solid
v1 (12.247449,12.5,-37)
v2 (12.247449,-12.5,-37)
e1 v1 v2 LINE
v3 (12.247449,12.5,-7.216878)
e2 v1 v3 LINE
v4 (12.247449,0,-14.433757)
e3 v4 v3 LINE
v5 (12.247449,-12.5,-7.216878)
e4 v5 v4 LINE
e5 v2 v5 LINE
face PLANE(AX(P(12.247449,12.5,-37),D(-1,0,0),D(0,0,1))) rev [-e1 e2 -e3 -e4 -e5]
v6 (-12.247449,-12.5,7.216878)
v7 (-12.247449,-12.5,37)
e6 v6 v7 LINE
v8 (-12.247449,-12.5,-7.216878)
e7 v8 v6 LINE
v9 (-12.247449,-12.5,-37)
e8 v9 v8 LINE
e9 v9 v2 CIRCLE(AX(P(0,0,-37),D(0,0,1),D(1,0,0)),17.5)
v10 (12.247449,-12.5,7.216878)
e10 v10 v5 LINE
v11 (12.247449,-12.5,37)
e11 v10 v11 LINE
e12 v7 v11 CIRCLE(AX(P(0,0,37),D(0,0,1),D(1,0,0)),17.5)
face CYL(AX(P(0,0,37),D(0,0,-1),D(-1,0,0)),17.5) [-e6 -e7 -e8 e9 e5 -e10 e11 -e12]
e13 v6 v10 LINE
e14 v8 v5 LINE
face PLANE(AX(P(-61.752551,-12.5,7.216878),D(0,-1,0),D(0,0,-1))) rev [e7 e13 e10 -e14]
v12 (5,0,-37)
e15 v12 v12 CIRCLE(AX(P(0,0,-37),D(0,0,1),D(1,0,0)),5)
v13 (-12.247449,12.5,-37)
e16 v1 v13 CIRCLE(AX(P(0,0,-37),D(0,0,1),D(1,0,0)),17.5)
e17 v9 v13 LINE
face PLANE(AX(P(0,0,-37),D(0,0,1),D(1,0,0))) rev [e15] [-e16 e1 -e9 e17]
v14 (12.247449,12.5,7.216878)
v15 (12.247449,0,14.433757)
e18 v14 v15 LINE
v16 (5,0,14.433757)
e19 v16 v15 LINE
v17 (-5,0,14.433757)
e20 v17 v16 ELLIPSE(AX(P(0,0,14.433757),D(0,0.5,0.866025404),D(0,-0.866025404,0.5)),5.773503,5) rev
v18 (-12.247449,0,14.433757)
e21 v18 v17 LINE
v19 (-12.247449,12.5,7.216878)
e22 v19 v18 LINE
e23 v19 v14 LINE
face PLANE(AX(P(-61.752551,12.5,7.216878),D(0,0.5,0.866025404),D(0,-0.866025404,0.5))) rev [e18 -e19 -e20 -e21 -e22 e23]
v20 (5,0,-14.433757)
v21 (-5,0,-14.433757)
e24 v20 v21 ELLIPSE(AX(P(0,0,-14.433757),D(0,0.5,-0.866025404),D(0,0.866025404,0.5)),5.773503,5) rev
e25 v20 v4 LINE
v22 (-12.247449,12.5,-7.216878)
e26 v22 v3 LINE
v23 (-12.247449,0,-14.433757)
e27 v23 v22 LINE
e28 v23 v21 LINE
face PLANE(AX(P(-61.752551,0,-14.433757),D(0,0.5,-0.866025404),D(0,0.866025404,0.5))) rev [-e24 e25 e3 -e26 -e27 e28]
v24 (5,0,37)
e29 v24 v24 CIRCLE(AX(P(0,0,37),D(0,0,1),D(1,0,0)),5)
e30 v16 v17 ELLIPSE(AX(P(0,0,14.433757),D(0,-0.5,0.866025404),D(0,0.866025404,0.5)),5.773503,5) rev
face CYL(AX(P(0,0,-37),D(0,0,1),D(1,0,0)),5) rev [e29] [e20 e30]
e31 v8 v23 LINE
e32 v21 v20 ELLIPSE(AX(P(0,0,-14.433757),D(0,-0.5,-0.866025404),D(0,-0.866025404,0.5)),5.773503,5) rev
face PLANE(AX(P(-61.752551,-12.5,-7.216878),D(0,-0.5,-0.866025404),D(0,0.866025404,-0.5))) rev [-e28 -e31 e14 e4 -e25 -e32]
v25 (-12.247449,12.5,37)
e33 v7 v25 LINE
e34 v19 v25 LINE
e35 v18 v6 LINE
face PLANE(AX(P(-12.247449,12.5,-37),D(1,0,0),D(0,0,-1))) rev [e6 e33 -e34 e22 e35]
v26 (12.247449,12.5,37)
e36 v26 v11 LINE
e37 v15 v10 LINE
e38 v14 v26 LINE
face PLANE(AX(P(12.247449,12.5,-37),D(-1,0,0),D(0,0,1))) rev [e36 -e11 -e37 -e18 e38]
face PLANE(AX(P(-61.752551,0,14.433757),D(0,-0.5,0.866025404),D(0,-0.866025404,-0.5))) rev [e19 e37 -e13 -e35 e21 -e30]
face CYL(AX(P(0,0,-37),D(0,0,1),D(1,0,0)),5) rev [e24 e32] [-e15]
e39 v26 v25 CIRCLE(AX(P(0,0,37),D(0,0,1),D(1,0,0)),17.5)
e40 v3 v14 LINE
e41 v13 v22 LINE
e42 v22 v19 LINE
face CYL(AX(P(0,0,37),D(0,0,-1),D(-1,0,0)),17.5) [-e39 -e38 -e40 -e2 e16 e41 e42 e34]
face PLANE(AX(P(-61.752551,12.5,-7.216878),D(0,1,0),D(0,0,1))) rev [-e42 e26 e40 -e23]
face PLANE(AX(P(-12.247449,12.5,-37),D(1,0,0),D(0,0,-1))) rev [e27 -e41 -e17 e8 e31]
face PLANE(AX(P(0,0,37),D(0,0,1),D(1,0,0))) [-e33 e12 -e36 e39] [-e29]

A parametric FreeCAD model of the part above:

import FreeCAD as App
import Part
import Sketcher
Q = App.Units.Quantity

doc = App.newDocument("Part")
body = doc.addObject("PartDesign::Body", "Body")

# Sketch on XY plane
sketch1 = doc.addObject("Sketcher::SketchObject", "Sketch")
body.addObject(sketch1)
sketch1.AttachmentSupport = (doc.XY_Plane, [""])
sketch1.MapMode = "FlatFace"
sketch1.addGeometry(Part.Circle(App.Vector(0, 0, 0), App.Vector(0, 0, 1), 18), False)
sketch1.addConstraint([
    Sketcher.Constraint("Coincident", 0, 3, -1, 1),
    Sketcher.Constraint("Diameter", 0, Q("35 mm")),
])
pad1 = doc.addObject("PartDesign::Pad", "Pad")
body.addObject(pad1)
pad1.Profile = sketch1
pad1.Length = 74
pad1.Midplane = True

# Sketch on XY plane
sketch2 = doc.addObject("Sketcher::SketchObject", "Sketch001")
body.addObject(sketch2)
sketch2.AttachmentSupport = (doc.XY_Plane, [""])
sketch2.MapMode = "FlatFace"
sketch2.AttachmentOffset = App.Placement(App.Vector(0, 0, 37), App.Rotation())
sketch2.addGeometry([
    Part.LineSegment(App.Vector(-33, 12, 0), App.Vector(-33, -12, 0)),  # 0
    Part.LineSegment(App.Vector(-33, -12, 0), App.Vector(-12, -12, 0)),  # 1
    Part.LineSegment(App.Vector(-12, -12, 0), App.Vector(-12, 12, 0)),  # 2
    Part.LineSegment(App.Vector(-12, 12, 0), App.Vector(-33, 12, 0)),  # 3
    Part.LineSegment(App.Vector(12, 12, 0), App.Vector(12, -12, 0)),  # 4
    Part.LineSegment(App.Vector(12, -12, 0), App.Vector(33, -12, 0)),  # 5
    Part.LineSegment(App.Vector(33, -12, 0), App.Vector(33, 12, 0)),  # 6
    Part.LineSegment(App.Vector(33, 12, 0), App.Vector(12, 12, 0)),  # 7
], False)
sketch2.addConstraint([
    Sketcher.Constraint("Coincident", 0, 2, 1, 1),
    Sketcher.Constraint("Coincident", 1, 2, 2, 1),
    Sketcher.Constraint("Coincident", 2, 2, 3, 1),
    Sketcher.Constraint("Coincident", 3, 2, 0, 1),
    Sketcher.Constraint("Coincident", 4, 2, 5, 1),
    Sketcher.Constraint("Coincident", 5, 2, 6, 1),
    Sketcher.Constraint("Coincident", 6, 2, 7, 1),
    Sketcher.Constraint("Coincident", 7, 2, 4, 1),
    Sketcher.Constraint("Vertical", 0),
    Sketcher.Constraint("Horizontal", 1),
    Sketcher.Constraint("Vertical", 2),
    Sketcher.Constraint("Horizontal", 3),
    Sketcher.Constraint("Vertical", 4),
    Sketcher.Constraint("Horizontal", 5),
    Sketcher.Constraint("Vertical", 6),
    Sketcher.Constraint("Horizontal", 7),
    Sketcher.Constraint("Symmetric", 2, 2, 4, 2, -1, 1),
    Sketcher.Constraint("Symmetric", 0, 2, 6, 2, -1, 1),
    Sketcher.Constraint("Horizontal", 1, 2, 4, 2),
    Sketcher.Constraint("DistanceY", 0, 2, 0, 1, Q("25 mm")),
    Sketcher.Constraint("DistanceX", 1, 1, 1, 2, Q("21.176448 mm")),
    Sketcher.Constraint("DistanceX", 1, 2, -1, 1, Q("12.247449 mm")),
])
pocket1 = doc.addObject("PartDesign::Pocket", "Pocket")
body.addObject(pocket1)
pocket1.Profile = sketch2
pocket1.Length = 74

# Sketch on XY plane
sketch3 = doc.addObject("Sketcher::SketchObject", "Sketch002")
body.addObject(sketch3)
sketch3.AttachmentSupport = (doc.XY_Plane, [""])
sketch3.MapMode = "FlatFace"
sketch3.AttachmentOffset = App.Placement(App.Vector(0, 0, 37), App.Rotation())
sketch3.addGeometry(Part.Circle(App.Vector(0, 0, 0), App.Vector(0, 0, 1), 5), False)
sketch3.addConstraint([
    Sketcher.Constraint("Coincident", 0, 3, -1, 1),
    Sketcher.Constraint("Diameter", 0, Q("10 mm")),
])
pocket2 = doc.addObject("PartDesign::Pocket", "Pocket001")
body.addObject(pocket2)
pocket2.Profile = sketch3
pocket2.Length = 74

# Sketch on YZ plane
sketch4 = doc.addObject("Sketcher::SketchObject", "Sketch003")
body.addObject(sketch4)
sketch4.AttachmentSupport = (doc.YZ_Plane, [""])
sketch4.MapMode = "FlatFace"
sketch4.AttachmentOffset = App.Placement(App.Vector(0, 0, 12.247449), App.Rotation())
sketch4.addGeometry([
    Part.LineSegment(App.Vector(0, -14, 0), App.Vector(12, -7, 0)),  # 0
    Part.LineSegment(App.Vector(12, -7, 0), App.Vector(12, 7, 0)),  # 1
    Part.LineSegment(App.Vector(12, 7, 0), App.Vector(0, 14, 0)),  # 2
    Part.LineSegment(App.Vector(0, 14, 0), App.Vector(-12, 7, 0)),  # 3
    Part.LineSegment(App.Vector(-12, 7, 0), App.Vector(-12, -7, 0)),  # 4
    Part.LineSegment(App.Vector(-12, -7, 0), App.Vector(0, -14, 0)),  # 5
], False)
sketch4.addConstraint([
    Sketcher.Constraint("Coincident", 0, 2, 1, 1),
    Sketcher.Constraint("Coincident", 1, 2, 2, 1),
    Sketcher.Constraint("Coincident", 2, 2, 3, 1),
    Sketcher.Constraint("Coincident", 3, 2, 4, 1),
    Sketcher.Constraint("Coincident", 4, 2, 5, 1),
    Sketcher.Constraint("Coincident", 5, 2, 0, 1),
    Sketcher.Constraint("Vertical", 1),
    Sketcher.Constraint("Vertical", 4),
    Sketcher.Constraint("Symmetric", 0, 2, 3, 2, -1, 1),
    Sketcher.Constraint("Symmetric", 2, 2, 5, 2, -1, 1),
    Sketcher.Constraint("PointOnObject", 2, 2, -2),
    Sketcher.Constraint("Parallel", 2, 5),
    Sketcher.Constraint("Horizontal", 1, 2, 3, 2),
    Sketcher.Constraint("Angle", 0, Q("30 deg")),
    Sketcher.Constraint("DistanceX", 3, 2, 1, 2, Q("25 mm")),
    Sketcher.Constraint("DistanceY", 1, 1, 1, 2, Q("14.433757 mm")),
])
pocket3 = doc.addObject("PartDesign::Pocket", "Pocket002")
body.addObject(pocket3)
pocket3.Profile = sketch4
pocket3.Length = 74

doc.recompute()
